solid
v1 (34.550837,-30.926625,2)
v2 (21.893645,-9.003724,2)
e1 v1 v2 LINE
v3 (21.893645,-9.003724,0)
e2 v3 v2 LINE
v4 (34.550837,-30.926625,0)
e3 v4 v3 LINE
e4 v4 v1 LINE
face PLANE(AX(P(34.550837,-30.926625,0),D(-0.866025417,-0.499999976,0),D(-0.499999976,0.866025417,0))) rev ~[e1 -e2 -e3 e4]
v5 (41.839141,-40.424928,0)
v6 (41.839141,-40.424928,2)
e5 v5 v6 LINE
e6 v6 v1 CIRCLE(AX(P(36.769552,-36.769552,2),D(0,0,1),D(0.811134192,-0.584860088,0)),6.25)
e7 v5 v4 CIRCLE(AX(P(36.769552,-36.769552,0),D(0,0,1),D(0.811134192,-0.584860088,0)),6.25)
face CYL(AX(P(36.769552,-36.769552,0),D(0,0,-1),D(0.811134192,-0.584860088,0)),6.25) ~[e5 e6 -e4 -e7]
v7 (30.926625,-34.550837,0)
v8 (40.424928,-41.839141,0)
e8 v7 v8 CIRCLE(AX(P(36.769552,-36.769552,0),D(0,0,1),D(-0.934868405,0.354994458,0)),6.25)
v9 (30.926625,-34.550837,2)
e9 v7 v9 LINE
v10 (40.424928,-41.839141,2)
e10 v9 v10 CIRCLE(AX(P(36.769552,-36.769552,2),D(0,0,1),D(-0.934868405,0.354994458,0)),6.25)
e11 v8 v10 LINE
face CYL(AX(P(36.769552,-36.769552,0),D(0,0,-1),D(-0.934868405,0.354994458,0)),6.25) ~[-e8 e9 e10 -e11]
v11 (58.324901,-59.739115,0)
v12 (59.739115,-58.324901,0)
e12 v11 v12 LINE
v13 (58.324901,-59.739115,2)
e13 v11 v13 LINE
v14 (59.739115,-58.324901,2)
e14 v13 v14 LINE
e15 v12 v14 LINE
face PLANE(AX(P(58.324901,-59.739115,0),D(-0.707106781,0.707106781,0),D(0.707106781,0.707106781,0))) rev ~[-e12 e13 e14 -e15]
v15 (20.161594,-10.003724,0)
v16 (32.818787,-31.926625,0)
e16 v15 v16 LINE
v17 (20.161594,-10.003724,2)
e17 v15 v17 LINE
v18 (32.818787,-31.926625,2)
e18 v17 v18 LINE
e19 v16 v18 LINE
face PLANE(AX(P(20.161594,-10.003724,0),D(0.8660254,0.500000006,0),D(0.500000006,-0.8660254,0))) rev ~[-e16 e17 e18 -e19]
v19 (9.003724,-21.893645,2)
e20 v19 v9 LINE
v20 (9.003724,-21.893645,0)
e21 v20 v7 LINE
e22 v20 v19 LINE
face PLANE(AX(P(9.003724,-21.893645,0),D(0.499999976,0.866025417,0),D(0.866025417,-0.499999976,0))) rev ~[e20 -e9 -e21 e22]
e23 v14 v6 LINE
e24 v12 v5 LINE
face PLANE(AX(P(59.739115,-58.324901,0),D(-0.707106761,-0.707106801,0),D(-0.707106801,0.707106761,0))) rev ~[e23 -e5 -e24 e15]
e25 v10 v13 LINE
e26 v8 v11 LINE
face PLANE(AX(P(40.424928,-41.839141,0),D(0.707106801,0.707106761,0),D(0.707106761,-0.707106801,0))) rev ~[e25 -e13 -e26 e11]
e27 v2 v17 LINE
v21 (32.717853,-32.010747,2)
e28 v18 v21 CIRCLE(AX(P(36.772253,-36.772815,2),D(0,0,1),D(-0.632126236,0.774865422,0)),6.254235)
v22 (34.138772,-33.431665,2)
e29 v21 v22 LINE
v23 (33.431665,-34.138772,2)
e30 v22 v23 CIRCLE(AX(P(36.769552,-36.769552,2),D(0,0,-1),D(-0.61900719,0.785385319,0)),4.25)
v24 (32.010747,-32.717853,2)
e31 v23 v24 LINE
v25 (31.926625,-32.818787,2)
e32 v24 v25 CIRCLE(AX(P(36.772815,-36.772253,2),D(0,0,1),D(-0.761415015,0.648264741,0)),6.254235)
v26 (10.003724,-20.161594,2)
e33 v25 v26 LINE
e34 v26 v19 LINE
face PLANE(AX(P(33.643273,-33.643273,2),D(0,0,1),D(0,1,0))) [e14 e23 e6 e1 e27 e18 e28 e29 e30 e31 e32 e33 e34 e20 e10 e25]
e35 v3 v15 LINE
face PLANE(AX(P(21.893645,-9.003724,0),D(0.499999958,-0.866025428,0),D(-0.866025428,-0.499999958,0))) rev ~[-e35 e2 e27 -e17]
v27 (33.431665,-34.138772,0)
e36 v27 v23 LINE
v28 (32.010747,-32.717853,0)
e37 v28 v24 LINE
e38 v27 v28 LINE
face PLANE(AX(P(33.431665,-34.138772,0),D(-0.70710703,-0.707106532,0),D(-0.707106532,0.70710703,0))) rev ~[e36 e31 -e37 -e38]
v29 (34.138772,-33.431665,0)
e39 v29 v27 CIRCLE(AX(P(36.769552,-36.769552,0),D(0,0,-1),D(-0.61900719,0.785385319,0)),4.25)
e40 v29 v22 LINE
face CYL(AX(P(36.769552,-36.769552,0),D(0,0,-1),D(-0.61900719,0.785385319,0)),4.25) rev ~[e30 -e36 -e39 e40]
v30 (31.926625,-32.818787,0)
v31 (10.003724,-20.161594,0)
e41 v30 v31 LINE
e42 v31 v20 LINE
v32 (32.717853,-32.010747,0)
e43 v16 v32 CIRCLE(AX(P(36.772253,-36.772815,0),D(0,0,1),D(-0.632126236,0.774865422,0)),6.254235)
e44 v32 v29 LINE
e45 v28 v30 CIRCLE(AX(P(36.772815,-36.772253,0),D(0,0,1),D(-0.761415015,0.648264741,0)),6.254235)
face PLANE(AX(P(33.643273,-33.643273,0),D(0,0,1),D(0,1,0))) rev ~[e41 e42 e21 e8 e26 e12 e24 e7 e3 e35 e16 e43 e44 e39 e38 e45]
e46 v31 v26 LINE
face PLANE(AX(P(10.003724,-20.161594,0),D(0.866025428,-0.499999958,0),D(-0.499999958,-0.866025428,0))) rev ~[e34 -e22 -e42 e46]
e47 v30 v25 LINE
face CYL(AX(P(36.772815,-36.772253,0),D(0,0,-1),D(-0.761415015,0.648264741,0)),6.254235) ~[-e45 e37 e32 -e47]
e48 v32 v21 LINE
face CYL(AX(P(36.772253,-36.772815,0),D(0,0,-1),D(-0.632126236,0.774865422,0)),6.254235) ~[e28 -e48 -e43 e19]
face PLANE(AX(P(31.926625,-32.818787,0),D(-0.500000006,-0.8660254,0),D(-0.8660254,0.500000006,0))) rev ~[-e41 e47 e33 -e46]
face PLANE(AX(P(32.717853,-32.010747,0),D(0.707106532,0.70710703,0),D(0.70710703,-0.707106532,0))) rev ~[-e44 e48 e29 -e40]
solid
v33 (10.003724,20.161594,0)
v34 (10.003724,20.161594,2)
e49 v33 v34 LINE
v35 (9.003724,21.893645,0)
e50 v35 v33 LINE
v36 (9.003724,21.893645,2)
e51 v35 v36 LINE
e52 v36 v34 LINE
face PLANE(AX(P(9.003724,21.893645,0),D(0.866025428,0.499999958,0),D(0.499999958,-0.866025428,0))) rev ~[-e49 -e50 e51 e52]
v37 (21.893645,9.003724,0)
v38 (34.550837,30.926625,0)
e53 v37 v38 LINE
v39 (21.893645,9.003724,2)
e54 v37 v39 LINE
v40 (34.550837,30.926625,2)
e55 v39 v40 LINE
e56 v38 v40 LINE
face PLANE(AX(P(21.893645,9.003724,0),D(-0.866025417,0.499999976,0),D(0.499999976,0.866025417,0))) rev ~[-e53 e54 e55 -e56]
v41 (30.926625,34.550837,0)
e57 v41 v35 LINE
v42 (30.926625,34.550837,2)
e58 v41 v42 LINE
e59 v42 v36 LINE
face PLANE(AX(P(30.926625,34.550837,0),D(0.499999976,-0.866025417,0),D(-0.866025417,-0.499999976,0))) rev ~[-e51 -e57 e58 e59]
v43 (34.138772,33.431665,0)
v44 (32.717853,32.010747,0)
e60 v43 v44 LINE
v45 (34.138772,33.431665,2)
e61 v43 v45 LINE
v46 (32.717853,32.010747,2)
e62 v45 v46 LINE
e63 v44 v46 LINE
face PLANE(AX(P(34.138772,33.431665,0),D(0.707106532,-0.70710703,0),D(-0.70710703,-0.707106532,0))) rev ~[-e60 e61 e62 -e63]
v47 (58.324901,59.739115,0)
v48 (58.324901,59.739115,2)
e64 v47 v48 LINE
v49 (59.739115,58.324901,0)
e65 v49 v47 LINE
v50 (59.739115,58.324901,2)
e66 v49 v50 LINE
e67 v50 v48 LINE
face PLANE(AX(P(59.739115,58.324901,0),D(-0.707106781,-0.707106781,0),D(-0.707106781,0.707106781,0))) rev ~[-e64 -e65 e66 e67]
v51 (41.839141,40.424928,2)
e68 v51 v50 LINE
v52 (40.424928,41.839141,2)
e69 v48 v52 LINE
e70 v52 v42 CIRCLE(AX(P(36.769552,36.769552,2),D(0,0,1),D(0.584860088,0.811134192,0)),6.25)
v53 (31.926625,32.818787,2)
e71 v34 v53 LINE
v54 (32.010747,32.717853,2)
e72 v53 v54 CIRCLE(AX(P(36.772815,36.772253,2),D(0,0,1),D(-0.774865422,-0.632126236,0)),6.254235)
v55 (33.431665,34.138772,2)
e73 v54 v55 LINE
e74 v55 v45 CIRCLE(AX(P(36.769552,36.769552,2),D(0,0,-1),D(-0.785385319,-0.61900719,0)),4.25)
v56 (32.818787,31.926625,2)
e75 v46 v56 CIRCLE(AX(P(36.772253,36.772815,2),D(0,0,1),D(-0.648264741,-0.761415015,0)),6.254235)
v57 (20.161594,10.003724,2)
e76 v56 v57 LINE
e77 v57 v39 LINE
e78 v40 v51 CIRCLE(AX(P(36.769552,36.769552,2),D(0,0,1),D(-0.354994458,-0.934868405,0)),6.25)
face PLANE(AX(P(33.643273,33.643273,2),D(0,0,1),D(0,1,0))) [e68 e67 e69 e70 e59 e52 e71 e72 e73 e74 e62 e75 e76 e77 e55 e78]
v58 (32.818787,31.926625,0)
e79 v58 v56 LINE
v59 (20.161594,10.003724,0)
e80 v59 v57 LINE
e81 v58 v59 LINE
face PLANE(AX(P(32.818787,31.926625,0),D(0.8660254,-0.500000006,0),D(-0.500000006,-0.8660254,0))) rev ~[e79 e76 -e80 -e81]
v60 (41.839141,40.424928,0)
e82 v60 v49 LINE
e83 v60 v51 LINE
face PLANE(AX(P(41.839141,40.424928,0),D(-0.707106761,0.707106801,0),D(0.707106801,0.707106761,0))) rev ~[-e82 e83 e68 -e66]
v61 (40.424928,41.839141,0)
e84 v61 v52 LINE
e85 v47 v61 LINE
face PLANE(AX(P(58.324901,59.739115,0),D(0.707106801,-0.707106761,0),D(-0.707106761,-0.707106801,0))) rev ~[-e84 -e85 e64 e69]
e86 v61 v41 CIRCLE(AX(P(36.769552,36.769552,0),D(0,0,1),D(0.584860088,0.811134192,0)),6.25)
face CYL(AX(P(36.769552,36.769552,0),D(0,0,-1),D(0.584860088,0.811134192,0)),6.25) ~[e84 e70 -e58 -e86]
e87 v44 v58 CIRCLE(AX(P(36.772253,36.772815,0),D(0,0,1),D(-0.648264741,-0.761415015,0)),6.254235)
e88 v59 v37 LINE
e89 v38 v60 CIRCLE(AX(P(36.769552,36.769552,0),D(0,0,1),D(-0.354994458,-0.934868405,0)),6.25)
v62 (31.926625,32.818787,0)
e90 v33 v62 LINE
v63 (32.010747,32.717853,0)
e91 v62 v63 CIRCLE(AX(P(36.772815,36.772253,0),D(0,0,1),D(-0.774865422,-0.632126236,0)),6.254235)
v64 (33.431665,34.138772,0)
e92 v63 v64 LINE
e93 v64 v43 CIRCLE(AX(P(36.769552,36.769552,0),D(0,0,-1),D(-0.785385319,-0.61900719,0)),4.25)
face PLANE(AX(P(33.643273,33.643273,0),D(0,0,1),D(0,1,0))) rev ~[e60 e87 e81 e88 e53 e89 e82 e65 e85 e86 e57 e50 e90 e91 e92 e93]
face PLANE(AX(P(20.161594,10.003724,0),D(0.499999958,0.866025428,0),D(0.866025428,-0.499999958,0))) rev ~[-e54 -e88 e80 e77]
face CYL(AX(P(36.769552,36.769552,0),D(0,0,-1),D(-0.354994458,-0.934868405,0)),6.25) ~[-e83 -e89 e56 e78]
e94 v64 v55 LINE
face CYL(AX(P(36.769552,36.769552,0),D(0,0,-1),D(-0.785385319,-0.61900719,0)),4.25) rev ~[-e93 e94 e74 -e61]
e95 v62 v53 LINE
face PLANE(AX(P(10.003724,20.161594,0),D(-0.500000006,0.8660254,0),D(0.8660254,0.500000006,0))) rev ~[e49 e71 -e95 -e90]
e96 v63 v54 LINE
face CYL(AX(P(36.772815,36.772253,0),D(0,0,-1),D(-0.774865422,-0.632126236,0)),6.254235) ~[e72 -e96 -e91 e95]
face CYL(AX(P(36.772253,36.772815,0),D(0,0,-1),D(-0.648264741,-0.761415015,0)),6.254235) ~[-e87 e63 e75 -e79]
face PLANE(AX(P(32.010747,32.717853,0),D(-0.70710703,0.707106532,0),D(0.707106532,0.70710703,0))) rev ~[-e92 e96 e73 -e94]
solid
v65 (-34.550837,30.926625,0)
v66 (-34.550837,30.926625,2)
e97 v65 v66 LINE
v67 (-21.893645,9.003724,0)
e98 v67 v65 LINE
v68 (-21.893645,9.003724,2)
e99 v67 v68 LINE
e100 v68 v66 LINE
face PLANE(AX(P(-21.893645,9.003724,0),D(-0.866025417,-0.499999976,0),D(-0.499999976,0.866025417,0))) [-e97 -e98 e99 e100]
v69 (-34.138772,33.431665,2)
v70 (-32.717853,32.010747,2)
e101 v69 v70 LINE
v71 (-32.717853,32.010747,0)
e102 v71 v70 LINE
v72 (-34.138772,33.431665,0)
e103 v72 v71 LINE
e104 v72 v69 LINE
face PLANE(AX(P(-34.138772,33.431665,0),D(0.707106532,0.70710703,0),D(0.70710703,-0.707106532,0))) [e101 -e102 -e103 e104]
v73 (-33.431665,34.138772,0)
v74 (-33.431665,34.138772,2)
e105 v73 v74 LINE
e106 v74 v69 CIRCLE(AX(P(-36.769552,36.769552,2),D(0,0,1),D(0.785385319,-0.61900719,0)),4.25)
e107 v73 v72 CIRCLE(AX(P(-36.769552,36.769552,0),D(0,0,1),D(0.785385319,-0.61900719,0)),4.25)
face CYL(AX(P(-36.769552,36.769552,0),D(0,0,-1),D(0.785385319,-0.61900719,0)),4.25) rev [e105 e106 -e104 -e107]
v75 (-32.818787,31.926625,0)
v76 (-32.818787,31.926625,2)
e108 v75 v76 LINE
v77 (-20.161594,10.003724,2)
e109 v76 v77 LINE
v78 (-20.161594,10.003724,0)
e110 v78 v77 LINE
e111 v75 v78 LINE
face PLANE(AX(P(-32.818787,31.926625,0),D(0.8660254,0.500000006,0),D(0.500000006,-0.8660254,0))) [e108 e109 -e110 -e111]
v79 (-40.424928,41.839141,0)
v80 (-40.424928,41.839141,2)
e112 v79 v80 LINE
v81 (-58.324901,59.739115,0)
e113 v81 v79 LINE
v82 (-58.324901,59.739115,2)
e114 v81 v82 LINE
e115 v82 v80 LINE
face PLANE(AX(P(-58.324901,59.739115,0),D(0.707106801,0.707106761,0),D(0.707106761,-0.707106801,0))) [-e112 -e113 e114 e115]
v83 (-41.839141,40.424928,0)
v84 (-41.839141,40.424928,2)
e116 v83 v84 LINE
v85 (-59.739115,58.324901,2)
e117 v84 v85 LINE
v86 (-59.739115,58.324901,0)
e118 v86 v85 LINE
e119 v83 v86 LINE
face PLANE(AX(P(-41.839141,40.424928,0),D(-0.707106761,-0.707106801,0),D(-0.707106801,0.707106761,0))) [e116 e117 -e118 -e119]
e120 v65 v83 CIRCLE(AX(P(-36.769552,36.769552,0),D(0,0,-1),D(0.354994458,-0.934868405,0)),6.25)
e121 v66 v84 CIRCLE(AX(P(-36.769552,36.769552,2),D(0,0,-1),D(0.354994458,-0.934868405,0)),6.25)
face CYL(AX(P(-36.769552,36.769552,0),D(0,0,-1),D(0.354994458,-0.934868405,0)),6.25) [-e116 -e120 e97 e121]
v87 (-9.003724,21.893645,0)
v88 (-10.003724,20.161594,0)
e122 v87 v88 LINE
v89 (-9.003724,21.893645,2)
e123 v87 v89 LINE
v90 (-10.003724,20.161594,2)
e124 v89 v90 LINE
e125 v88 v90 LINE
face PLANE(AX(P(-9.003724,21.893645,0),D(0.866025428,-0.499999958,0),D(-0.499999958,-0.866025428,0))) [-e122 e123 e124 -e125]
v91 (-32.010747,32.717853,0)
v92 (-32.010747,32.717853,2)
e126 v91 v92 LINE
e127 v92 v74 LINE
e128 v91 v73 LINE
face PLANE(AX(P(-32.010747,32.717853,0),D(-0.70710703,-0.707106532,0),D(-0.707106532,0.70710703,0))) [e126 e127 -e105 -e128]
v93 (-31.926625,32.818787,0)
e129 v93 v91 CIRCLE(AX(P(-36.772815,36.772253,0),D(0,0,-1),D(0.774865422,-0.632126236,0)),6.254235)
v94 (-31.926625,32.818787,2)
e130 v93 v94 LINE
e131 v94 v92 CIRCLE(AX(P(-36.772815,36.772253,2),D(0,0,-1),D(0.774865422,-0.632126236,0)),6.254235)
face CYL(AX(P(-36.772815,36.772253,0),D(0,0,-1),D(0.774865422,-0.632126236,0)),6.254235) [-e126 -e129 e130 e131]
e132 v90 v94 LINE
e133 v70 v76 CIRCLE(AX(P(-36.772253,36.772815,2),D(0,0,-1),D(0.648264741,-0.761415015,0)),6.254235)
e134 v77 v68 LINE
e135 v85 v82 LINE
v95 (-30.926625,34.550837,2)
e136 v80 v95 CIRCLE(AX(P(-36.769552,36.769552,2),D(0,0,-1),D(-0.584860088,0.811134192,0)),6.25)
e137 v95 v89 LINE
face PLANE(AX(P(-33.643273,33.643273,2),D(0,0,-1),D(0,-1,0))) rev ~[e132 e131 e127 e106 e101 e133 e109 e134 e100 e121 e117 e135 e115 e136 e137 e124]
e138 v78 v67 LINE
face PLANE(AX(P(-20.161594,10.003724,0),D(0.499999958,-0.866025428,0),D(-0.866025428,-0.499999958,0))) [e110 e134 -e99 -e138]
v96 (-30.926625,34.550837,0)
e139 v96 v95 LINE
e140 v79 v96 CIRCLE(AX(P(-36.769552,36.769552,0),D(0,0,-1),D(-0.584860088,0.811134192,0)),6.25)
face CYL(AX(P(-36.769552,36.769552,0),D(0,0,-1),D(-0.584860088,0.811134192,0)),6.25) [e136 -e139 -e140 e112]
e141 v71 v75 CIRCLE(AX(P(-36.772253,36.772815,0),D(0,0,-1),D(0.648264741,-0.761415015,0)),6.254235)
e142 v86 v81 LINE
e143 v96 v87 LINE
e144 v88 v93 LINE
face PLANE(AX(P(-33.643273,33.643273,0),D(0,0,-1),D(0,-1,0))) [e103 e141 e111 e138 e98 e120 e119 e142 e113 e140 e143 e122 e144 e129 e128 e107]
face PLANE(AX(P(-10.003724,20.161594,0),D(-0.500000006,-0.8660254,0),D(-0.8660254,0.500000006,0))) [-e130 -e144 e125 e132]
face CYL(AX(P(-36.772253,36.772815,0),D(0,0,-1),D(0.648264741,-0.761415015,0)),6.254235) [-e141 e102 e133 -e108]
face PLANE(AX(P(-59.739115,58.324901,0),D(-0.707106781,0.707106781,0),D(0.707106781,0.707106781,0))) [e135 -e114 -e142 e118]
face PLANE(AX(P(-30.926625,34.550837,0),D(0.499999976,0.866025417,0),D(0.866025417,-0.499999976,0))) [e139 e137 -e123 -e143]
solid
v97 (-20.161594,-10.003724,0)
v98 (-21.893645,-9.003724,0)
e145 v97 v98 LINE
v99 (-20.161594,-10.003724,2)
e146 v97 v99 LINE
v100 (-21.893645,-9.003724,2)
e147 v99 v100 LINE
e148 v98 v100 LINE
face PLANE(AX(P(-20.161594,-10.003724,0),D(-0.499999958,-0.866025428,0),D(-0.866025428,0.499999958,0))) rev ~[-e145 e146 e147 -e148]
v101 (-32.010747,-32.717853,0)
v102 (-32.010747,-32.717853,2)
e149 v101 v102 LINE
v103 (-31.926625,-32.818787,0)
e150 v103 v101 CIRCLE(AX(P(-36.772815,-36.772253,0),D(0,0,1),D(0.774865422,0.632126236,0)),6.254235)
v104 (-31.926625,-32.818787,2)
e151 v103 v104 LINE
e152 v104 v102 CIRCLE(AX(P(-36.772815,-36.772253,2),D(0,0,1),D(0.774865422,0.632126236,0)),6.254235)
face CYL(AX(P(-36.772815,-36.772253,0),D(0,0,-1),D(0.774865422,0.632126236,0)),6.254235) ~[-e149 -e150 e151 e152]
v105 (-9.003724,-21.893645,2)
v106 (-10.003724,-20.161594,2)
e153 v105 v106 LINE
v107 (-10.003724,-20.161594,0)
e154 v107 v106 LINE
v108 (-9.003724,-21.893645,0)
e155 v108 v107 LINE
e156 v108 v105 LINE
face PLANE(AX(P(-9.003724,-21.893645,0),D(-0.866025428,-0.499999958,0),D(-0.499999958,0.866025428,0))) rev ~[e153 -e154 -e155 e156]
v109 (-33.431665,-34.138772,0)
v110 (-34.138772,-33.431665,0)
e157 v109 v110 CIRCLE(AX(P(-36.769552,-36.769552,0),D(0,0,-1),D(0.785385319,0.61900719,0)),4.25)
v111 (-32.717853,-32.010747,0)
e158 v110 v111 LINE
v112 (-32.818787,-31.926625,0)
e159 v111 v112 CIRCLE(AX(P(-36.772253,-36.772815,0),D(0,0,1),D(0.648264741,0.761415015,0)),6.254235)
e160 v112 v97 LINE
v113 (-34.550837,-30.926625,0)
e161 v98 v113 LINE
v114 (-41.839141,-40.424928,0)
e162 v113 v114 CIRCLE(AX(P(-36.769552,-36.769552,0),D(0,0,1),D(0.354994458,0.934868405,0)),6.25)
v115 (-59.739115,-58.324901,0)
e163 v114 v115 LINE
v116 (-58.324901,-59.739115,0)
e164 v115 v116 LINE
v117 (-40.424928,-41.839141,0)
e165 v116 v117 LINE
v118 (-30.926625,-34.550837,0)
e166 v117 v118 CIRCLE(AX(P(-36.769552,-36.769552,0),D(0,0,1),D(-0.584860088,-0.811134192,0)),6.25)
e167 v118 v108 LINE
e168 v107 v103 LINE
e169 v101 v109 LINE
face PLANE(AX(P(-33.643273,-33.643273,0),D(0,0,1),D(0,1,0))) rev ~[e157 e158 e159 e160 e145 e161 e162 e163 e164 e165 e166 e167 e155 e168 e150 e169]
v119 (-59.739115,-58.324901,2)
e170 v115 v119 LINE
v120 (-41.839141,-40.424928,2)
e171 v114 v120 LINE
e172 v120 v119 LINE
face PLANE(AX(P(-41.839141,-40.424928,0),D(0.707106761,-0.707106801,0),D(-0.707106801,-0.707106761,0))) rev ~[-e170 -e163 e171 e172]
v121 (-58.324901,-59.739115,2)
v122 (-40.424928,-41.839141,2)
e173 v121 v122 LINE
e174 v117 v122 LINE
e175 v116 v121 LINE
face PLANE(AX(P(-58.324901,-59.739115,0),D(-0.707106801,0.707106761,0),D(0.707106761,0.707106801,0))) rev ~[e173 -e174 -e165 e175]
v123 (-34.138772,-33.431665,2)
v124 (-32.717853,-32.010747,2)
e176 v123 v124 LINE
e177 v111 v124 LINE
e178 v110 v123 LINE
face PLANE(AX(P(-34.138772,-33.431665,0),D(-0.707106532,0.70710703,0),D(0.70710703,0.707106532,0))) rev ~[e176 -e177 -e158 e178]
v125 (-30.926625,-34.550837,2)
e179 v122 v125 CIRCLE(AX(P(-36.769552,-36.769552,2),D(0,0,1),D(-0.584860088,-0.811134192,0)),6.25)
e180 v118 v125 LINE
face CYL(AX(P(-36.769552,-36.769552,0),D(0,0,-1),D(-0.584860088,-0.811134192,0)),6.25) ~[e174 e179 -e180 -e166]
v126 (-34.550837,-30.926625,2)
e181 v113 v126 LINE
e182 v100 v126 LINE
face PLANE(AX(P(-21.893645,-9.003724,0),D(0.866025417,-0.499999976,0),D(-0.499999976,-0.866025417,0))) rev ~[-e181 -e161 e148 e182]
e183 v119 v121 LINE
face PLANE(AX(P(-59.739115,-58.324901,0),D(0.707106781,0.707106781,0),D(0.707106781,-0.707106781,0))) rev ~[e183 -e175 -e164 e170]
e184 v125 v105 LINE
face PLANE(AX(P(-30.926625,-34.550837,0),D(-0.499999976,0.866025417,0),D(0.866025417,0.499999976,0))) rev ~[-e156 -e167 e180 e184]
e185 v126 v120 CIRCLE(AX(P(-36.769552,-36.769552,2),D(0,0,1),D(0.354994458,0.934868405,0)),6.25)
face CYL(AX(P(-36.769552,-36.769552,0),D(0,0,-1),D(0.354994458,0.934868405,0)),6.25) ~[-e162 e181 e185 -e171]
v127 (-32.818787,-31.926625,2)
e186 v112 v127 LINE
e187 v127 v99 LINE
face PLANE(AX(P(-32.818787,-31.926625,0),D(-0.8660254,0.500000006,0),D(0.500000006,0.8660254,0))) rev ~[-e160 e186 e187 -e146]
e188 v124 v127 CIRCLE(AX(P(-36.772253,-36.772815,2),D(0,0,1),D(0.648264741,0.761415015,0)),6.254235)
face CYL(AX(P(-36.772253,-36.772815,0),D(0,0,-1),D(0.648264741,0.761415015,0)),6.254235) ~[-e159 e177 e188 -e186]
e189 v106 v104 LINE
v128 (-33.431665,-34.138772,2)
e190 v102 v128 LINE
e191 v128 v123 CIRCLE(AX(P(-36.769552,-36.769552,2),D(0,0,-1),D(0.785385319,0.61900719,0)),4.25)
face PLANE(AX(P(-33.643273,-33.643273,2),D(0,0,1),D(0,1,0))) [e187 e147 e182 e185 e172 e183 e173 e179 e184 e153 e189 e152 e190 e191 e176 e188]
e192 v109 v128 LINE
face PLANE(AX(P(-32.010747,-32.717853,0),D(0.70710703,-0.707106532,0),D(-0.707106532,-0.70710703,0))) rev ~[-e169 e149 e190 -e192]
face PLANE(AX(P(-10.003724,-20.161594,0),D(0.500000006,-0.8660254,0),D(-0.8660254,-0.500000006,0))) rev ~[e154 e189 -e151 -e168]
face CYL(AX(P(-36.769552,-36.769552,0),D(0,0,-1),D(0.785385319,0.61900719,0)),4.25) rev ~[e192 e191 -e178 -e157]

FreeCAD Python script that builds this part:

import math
import FreeCAD as App
import Part
import Sketcher

V = App.Vector
Q = App.Units.Quantity

doc = App.newDocument("Part")
params = doc.addObject("Spreadsheet::Sheet", "Params")
for row, (alias, value) in enumerate([
    ("sketch1_radius", "6.25 mm"),
    ("sketch1_radius2", "6.25 mm"),
    ("sketch1_radius3", "4.25 mm"),
    ("sketch1_length", "2.000001 mm"),
    ("sketch1_length2", "2 mm"),
    ("pad1_length", "2 mm"),
    ("sketch2_radius", "6.25 mm"),
    ("sketch2_radius2", "4.25 mm"),
    ("sketch2_radius3", "6.25 mm"),
    ("sketch2_length", "2 mm"),
    ("sketch2_length2", "2 mm"),
    ("pad2_length", "2 mm"),
    ("sketch3_radius", "6.25 mm"),
    ("sketch3_radius2", "6.25 mm"),
    ("sketch3_radius3", "4.25 mm"),
    ("sketch3_length", "2.000001 mm"),
    ("sketch3_length2", "2 mm"),
    ("pad3_length", "2 mm"),
    ("sketch4_radius", "6.25 mm"),
    ("sketch4_radius2", "6.25 mm"),
    ("sketch4_radius3", "4.25 mm"),
    ("sketch4_length", "2.000001 mm"),
    ("sketch4_length2", "2 mm"),
    ("pad4_length", "2 mm"),
], start=1):
    params.set(f"A{row}", alias)
    params.set(f"B{row}", "=" + value)
    params.setAlias(f"B{row}", alias)

body = doc.addObject("PartDesign::Body", "Body")

# Sketch on XY plane
sketch1 = doc.addObject("Sketcher::SketchObject", "Sketch")
body.addObject(sketch1)
sketch1.AttachmentSupport = (doc.XY_Plane, [""])
sketch1.MapMode = "FlatFace"
sketch1.addGeometry([
    Part.LineSegment(V(-21.893645, 9.003724, 0), V(-34.550837, 30.926625, 0)),  # 0
    Part.ArcOfCircle(Part.Circle(V(-36.769552, 36.769552, 0), V(0, 0, 1), 6.25), math.radians(144.206893), math.radians(290.793105)),  # 1
    Part.LineSegment(V(-41.839141, 40.424928, 0), V(-59.739115, 58.324901, 0)),  # 2
    Part.LineSegment(V(-59.739115, 58.324901, 0), V(-58.324901, 59.739115, 0)),  # 3
    Part.LineSegment(V(-58.324901, 59.739115, 0), V(-40.424928, 41.839141, 0)),  # 4
    Part.ArcOfCircle(Part.Circle(V(-36.769552, 36.769552, 0), V(0, 0, 1), 6.25), math.radians(-20.793105), math.radians(125.793107)),  # 5
    Part.LineSegment(V(-30.926625, 34.550837, 0), V(-9.003724, 21.893645, 0)),  # 6
    Part.LineSegment(V(-9.003724, 21.893645, 0), V(-10.003724, 20.161594, 0)),  # 7
    Part.LineSegment(V(-10.003724, 20.161594, 0), V(-31.926625, 32.818787, 0)),  # 8
    Part.ArcOfCircle(Part.Circle(V(-36.772815, 36.772253, 0), V(0, 0, 1), 6.254235), math.radians(-40.410898), math.radians(-39.207167)),  # 9
    Part.LineSegment(V(-32.010747, 32.717853, 0), V(-33.431665, 34.138772, 0)),  # 10
    Part.ArcOfCircle(Part.Circle(V(-36.769552, 36.769552, 0), V(0, 0, 1), 4.25), math.radians(-38.24367), math.radians(308.24367)),  # 11
    Part.LineSegment(V(-34.138772, 33.431665, 0), V(-32.717853, 32.010747, 0)),  # 12
    Part.ArcOfCircle(Part.Circle(V(-36.772253, 36.772815, 0), V(0, 0, 1), 6.254235), math.radians(-50.792833), math.radians(-49.589102)),  # 13
    Part.LineSegment(V(-32.818787, 31.926625, 0), V(-20.161594, 10.003724, 0)),  # 14
    Part.LineSegment(V(-20.161594, 10.003724, 0), V(-21.893645, 9.003724, 0)),  # 15
], False)
sketch1.addConstraint([
    Sketcher.Constraint("Coincident", 0, 2, 1, 2),
    Sketcher.Constraint("Coincident", 1, 1, 2, 1),
    Sketcher.Constraint("Coincident", 2, 2, 3, 1),
    Sketcher.Constraint("Coincident", 3, 2, 4, 1),
    Sketcher.Constraint("Coincident", 4, 2, 5, 2),
    Sketcher.Constraint("Coincident", 5, 1, 6, 1),
    Sketcher.Constraint("Coincident", 6, 2, 7, 1),
    Sketcher.Constraint("Coincident", 7, 2, 8, 1),
    Sketcher.Constraint("Coincident", 8, 2, 9, 2),
    Sketcher.Constraint("Coincident", 9, 1, 10, 1),
    Sketcher.Constraint("Coincident", 10, 2, 11, 1),
    Sketcher.Constraint("Coincident", 11, 2, 12, 1),
    Sketcher.Constraint("Coincident", 12, 2, 13, 2),
    Sketcher.Constraint("Coincident", 13, 1, 14, 1),
    Sketcher.Constraint("Coincident", 14, 2, 15, 1),
    Sketcher.Constraint("Coincident", 15, 2, 0, 1),
    Sketcher.Constraint("Coincident", 5, 3, 1, 3),
    Sketcher.Constraint("Coincident", 11, 3, 1, 3),
    Sketcher.Constraint("Radius", 1, Q("6.25 mm")),
    Sketcher.Constraint("Radius", 5, Q("6.25 mm")),
    Sketcher.Constraint("Radius", 11, Q("4.25 mm")),
    Sketcher.Constraint("Distance", 3, Q("2.000001 mm")),
    Sketcher.Constraint("Distance", 7, Q("2 mm")),
    Sketcher.Constraint("Distance", 15, Q("2 mm")),
    Sketcher.Constraint("DistanceX", 7, 2, 6, 2, Q("1 mm")),
    Sketcher.Constraint("DistanceX", 8, 2, 5, 1, Q("1 mm")),
    Sketcher.Constraint("DistanceY", 0, 2, 13, 1, Q("1 mm")),
    Sketcher.Constraint("DistanceY", 15, 2, 14, 2, Q("1 mm")),
    Sketcher.Constraint("Radius", 9, Q("6.254235 mm")),
    Sketcher.Constraint("Radius", 13, Q("6.254235 mm")),
    Sketcher.Constraint("DistanceY", -1, 1, 2, 2, Q("58.324901 mm")),
    Sketcher.Constraint("DistanceX", 3, 2, -1, 1, Q("58.324901 mm")),
    Sketcher.Constraint("DistanceY", 5, 3, 9, 3, Q("0.0027 mm")),
    Sketcher.Constraint("DistanceX", 13, 3, 1, 3, Q("0.0027 mm")),
    Sketcher.Constraint("DistanceX", 2, 2, 9, 3, Q("22.9663 mm")),
    Sketcher.Constraint("DistanceY", 13, 3, 3, 2, Q("22.9663 mm")),
    Sketcher.Constraint("DistanceX", 5, 1, 6, 2, Q("21.922901 mm")),
    Sketcher.Constraint("DistanceY", 9, 1, 11, 3, Q("4.051699 mm")),
    Sketcher.Constraint("DistanceY", 14, 2, 13, 1, Q("21.922901 mm")),
    Sketcher.Constraint("DistanceX", 1, 1, -1, 1, Q("41.839141 mm")),
    Sketcher.Constraint("DistanceY", -1, 1, 1, 1, Q("40.424928 mm")),
    Sketcher.Constraint("DistanceY", -1, 1, 4, 2, Q("41.839141 mm")),
    Sketcher.Constraint("DistanceX", 11, 2, -1, 1, Q("34.138772 mm")),
    Sketcher.Constraint("DistanceX", 9, 3, 0, 2, Q("2.221978 mm")),
    Sketcher.Constraint("DistanceY", 0, 2, 13, 3, Q("5.84619 mm")),
    Sketcher.Constraint("DistanceX", 1, 1, 13, 3, Q("5.066888 mm")),
    Sketcher.Constraint("DistanceY", 0, 2, 5, 1, Q("3.624212 mm")),
    Sketcher.Constraint("DistanceY", 6, 2, 5, 1, Q("12.657192 mm")),
    Sketcher.Constraint("DistanceX", 10, 2, 8, 2, Q("1.50504 mm")),
    Sketcher.Constraint("DistanceY", 12, 2, 8, 2, Q("0.80804 mm")),
    Sketcher.Constraint("DistanceX", 14, 2, 7, 2, Q("10.15787 mm")),
])
sketch1.setExpression("Constraints[18]", "Params.sketch1_radius")
sketch1.setExpression("Constraints[19]", "Params.sketch1_radius2")
sketch1.setExpression("Constraints[20]", "Params.sketch1_radius3")
sketch1.setExpression("Constraints[21]", "Params.sketch1_length")
sketch1.setExpression("Constraints[22]", "Params.sketch1_length2")
pad1 = doc.addObject("PartDesign::Pad", "Pad")
body.addObject(pad1)
pad1.Profile = sketch1
pad1.setExpression("Length", "Params.pad1_length")
body2 = doc.addObject("PartDesign::Body", "Body001")

# Sketch on XY plane
sketch2 = doc.addObject("Sketcher::SketchObject", "Sketch001")
body2.addObject(sketch2)
sketch2.AttachmentSupport = (doc.getObject("XY_Plane001"), [""])
sketch2.MapMode = "FlatFace"
sketch2.addGeometry([
    Part.LineSegment(V(58.324901, 59.739115, 0), V(40.424928, 41.839141, 0)),  # 0
    Part.ArcOfCircle(Part.Circle(V(36.769552, 36.769552, 0), V(0, 0, 1), 6.25), math.radians(54.206893), math.radians(200.793105)),  # 1
    Part.LineSegment(V(30.926625, 34.550837, 0), V(9.003724, 21.893645, 0)),  # 2
    Part.LineSegment(V(9.003724, 21.893645, 0), V(10.003724, 20.161594, 0)),  # 3
    Part.LineSegment(V(10.003724, 20.161594, 0), V(31.926625, 32.818787, 0)),  # 4
    Part.ArcOfCircle(Part.Circle(V(36.772815, 36.772253, 0), V(0, 0, 1), 6.254235), math.radians(-140.792833), math.radians(-139.589102)),  # 5
    Part.LineSegment(V(32.010747, 32.717853, 0), V(33.431665, 34.138772, 0)),  # 6
    Part.ArcOfCircle(Part.Circle(V(36.769552, 36.769552, 0), V(0, 0, 1), 4.25), math.radians(-128.24367), math.radians(218.24367)),  # 7
    Part.LineSegment(V(34.138772, 33.431665, 0), V(32.717853, 32.010747, 0)),  # 8
    Part.ArcOfCircle(Part.Circle(V(36.772253, 36.772815, 0), V(0, 0, 1), 6.254235), math.radians(-130.410898), math.radians(-129.207167)),  # 9
    Part.LineSegment(V(32.818787, 31.926625, 0), V(20.161594, 10.003724, 0)),  # 10
    Part.LineSegment(V(20.161594, 10.003724, 0), V(21.893645, 9.003724, 0)),  # 11
    Part.LineSegment(V(21.893645, 9.003724, 0), V(34.550837, 30.926625, 0)),  # 12
    Part.ArcOfCircle(Part.Circle(V(36.769552, 36.769552, 0), V(0, 0, 1), 6.25), math.radians(-110.793105), math.radians(35.793107)),  # 13
    Part.LineSegment(V(41.839141, 40.424928, 0), V(59.739115, 58.324901, 0)),  # 14
    Part.LineSegment(V(59.739115, 58.324901, 0), V(58.324901, 59.739115, 0)),  # 15
], False)
sketch2.addConstraint([
    Sketcher.Constraint("Coincident", 0, 2, 1, 1),
    Sketcher.Constraint("Coincident", 1, 2, 2, 1),
    Sketcher.Constraint("Coincident", 2, 2, 3, 1),
    Sketcher.Constraint("Coincident", 3, 2, 4, 1),
    Sketcher.Constraint("Coincident", 4, 2, 5, 1),
    Sketcher.Constraint("Coincident", 5, 2, 6, 1),
    Sketcher.Constraint("Coincident", 6, 2, 7, 2),
    Sketcher.Constraint("Coincident", 7, 1, 8, 1),
    Sketcher.Constraint("Coincident", 8, 2, 9, 1),
    Sketcher.Constraint("Coincident", 9, 2, 10, 1),
    Sketcher.Constraint("Coincident", 10, 2, 11, 1),
    Sketcher.Constraint("Coincident", 11, 2, 12, 1),
    Sketcher.Constraint("Coincident", 12, 2, 13, 1),
    Sketcher.Constraint("Coincident", 13, 2, 14, 1),
    Sketcher.Constraint("Coincident", 14, 2, 15, 1),
    Sketcher.Constraint("Coincident", 15, 2, 0, 1),
    Sketcher.Constraint("Coincident", 7, 3, 1, 3),
    Sketcher.Constraint("Coincident", 13, 3, 1, 3),
    Sketcher.Constraint("Radius", 1, Q("6.25 mm")),
    Sketcher.Constraint("Radius", 7, Q("4.25 mm")),
    Sketcher.Constraint("Radius", 13, Q("6.25 mm")),
    Sketcher.Constraint("Distance", 3, Q("2 mm")),
    Sketcher.Constraint("Distance", 11, Q("2 mm")),
    Sketcher.Constraint("Distance", 15, Q("2.000001 mm")),
    Sketcher.Constraint("DistanceX", 2, 2, 3, 2, Q("1 mm")),
    Sketcher.Constraint("DistanceX", 1, 2, 4, 2, Q("1 mm")),
    Sketcher.Constraint("DistanceY", 11, 2, 10, 2, Q("1 mm")),
    Sketcher.Constraint("DistanceY", 12, 2, 9, 2, Q("1 mm")),
    Sketcher.Constraint("Radius", 5, Q("6.254235 mm")),
    Sketcher.Constraint("Radius", 9, Q("6.254235 mm")),
    Sketcher.Constraint("DistanceY", -1, 1, 14, 2, Q("58.324901 mm")),
    Sketcher.Constraint("DistanceX", -1, 1, 15, 2, Q("58.324901 mm")),
    Sketcher.Constraint("DistanceY", 1, 3, 5, 3, Q("0.0027 mm")),
    Sketcher.Constraint("DistanceX", 1, 3, 9, 3, Q("0.0027 mm")),
    Sketcher.Constraint("DistanceX", 2, 2, 1, 2, Q("21.922901 mm")),
    Sketcher.Constraint("DistanceY", 5, 2, 7, 3, Q("4.051699 mm")),
    Sketcher.Constraint("DistanceY", 10, 2, 9, 2, Q("21.922901 mm")),
    Sketcher.Constraint("DistanceX", 5, 3, 14, 2, Q("22.9663 mm")),
    Sketcher.Constraint("DistanceY", 9, 3, 15, 2, Q("22.9663 mm")),
    Sketcher.Constraint("DistanceY", -1, 1, 0, 2, Q("41.839141 mm")),
    Sketcher.Constraint("DistanceX", -1, 1, 7, 1, Q("34.138772 mm")),
    Sketcher.Constraint("DistanceX", -1, 1, 13, 2, Q("41.839141 mm")),
    Sketcher.Constraint("DistanceY", -1, 1, 13, 2, Q("40.424928 mm")),
    Sketcher.Constraint("DistanceY", 5, 3, 0, 2, Q("5.066888 mm")),
    Sketcher.Constraint("DistanceY", 1, 2, 9, 3, Q("2.221978 mm")),
    Sketcher.Constraint("DistanceX", 1, 2, 5, 3, Q("5.84619 mm")),
    Sketcher.Constraint("DistanceY", 2, 2, 1, 2, Q("12.657192 mm")),
    Sketcher.Constraint("DistanceX", 4, 2, 6, 2, Q("1.50504 mm")),
    Sketcher.Constraint("DistanceY", 8, 2, 4, 2, Q("0.80804 mm")),
    Sketcher.Constraint("DistanceY", 9, 2, 8, 2, Q("0.084122 mm")),
    Sketcher.Constraint("DistanceX", 3, 2, 10, 2, Q("10.15787 mm")),
])
sketch2.setExpression("Constraints[18]", "Params.sketch2_radius")
sketch2.setExpression("Constraints[19]", "Params.sketch2_radius2")
sketch2.setExpression("Constraints[20]", "Params.sketch2_radius3")
sketch2.setExpression("Constraints[21]", "Params.sketch2_length")
sketch2.setExpression("Constraints[22]", "Params.sketch2_length2")
pad2 = doc.addObject("PartDesign::Pad", "Pad001")
body2.addObject(pad2)
pad2.Profile = sketch2
pad2.setExpression("Length", "Params.pad2_length")
body3 = doc.addObject("PartDesign::Body", "Body002")

# Sketch on XY plane
sketch3 = doc.addObject("Sketcher::SketchObject", "Sketch002")
body3.addObject(sketch3)
sketch3.AttachmentSupport = (doc.getObject("XY_Plane002"), [""])
sketch3.MapMode = "FlatFace"
sketch3.addGeometry([
    Part.LineSegment(V(9.003724, -21.893645, 0), V(30.926625, -34.550837, 0)),  # 0
    Part.ArcOfCircle(Part.Circle(V(36.769552, -36.769552, 0), V(0, 0, 1), 6.25), math.radians(159.206895), math.radians(305.793107)),  # 1
    Part.LineSegment(V(40.424928, -41.839141, 0), V(58.324901, -59.739115, 0)),  # 2
    Part.LineSegment(V(58.324901, -59.739115, 0), V(59.739115, -58.324901, 0)),  # 3
    Part.LineSegment(V(59.739115, -58.324901, 0), V(41.839141, -40.424928, 0)),  # 4
    Part.ArcOfCircle(Part.Circle(V(36.769552, -36.769552, 0), V(0, 0, 1), 6.25), math.radians(-35.793107), math.radians(110.793105)),  # 5
    Part.LineSegment(V(34.550837, -30.926625, 0), V(21.893645, -9.003724, 0)),  # 6
    Part.LineSegment(V(21.893645, -9.003724, 0), V(20.161594, -10.003724, 0)),  # 7
    Part.LineSegment(V(20.161594, -10.003724, 0), V(32.818787, -31.926625, 0)),  # 8
    Part.ArcOfCircle(Part.Circle(V(36.772253, -36.772815, 0), V(0, 0, 1), 6.254235), math.radians(129.207167), math.radians(130.410898)),  # 9
    Part.LineSegment(V(32.717853, -32.010747, 0), V(34.138772, -33.431665, 0)),  # 10
    Part.ArcOfCircle(Part.Circle(V(36.769552, -36.769552, 0), V(0, 0, 1), 4.25), math.radians(141.75633), math.radians(488.24367)),  # 11
    Part.LineSegment(V(33.431665, -34.138772, 0), V(32.010747, -32.717853, 0)),  # 12
    Part.ArcOfCircle(Part.Circle(V(36.772815, -36.772253, 0), V(0, 0, 1), 6.254235), math.radians(139.589102), math.radians(140.792833)),  # 13
    Part.LineSegment(V(31.926625, -32.818787, 0), V(10.003724, -20.161594, 0)),  # 14
    Part.LineSegment(V(10.003724, -20.161594, 0), V(9.003724, -21.893645, 0)),  # 15
], False)
sketch3.addConstraint([
    Sketcher.Constraint("Coincident", 0, 2, 1, 1),
    Sketcher.Constraint("Coincident", 1, 2, 2, 1),
    Sketcher.Constraint("Coincident", 2, 2, 3, 1),
    Sketcher.Constraint("Coincident", 3, 2, 4, 1),
    Sketcher.Constraint("Coincident", 4, 2, 5, 1),
    Sketcher.Constraint("Coincident", 5, 2, 6, 1),
    Sketcher.Constraint("Coincident", 6, 2, 7, 1),
    Sketcher.Constraint("Coincident", 7, 2, 8, 1),
    Sketcher.Constraint("Coincident", 8, 2, 9, 1),
    Sketcher.Constraint("Coincident", 9, 2, 10, 1),
    Sketcher.Constraint("Coincident", 10, 2, 11, 2),
    Sketcher.Constraint("Coincident", 11, 1, 12, 1),
    Sketcher.Constraint("Coincident", 12, 2, 13, 1),
    Sketcher.Constraint("Coincident", 13, 2, 14, 1),
    Sketcher.Constraint("Coincident", 14, 2, 15, 1),
    Sketcher.Constraint("Coincident", 15, 2, 0, 1),
    Sketcher.Constraint("Coincident", 5, 3, 1, 3),
    Sketcher.Constraint("Coincident", 11, 3, 1, 3),
    Sketcher.Constraint("Radius", 1, Q("6.25 mm")),
    Sketcher.Constraint("Radius", 5, Q("6.25 mm")),
    Sketcher.Constraint("Radius", 11, Q("4.25 mm")),
    Sketcher.Constraint("Distance", 3, Q("2.000001 mm")),
    Sketcher.Constraint("Distance", 7, Q("2 mm")),
    Sketcher.Constraint("Distance", 15, Q("2 mm")),
    Sketcher.Constraint("DistanceY", 7, 2, 6, 2, Q("1 mm")),
    Sketcher.Constraint("DistanceY", 8, 2, 5, 2, Q("1 mm")),
    Sketcher.Constraint("DistanceX", 0, 2, 13, 2, Q("1 mm")),
    Sketcher.Constraint("DistanceX", 15, 2, 14, 2, Q("1 mm")),
    Sketcher.Constraint("Radius", 9, Q("6.254235 mm")),
    Sketcher.Constraint("Radius", 13, Q("6.254235 mm")),
    Sketcher.Constraint("DistanceX", -1, 1, 2, 2, Q("58.324901 mm")),
    Sketcher.Constraint("DistanceY", 3, 2, -1, 1, Q("58.324901 mm")),
    Sketcher.Constraint("DistanceX", 5, 3, 9, 3, Q("0.0027 mm")),
    Sketcher.Constraint("DistanceY", 13, 3, 1, 3, Q("0.0027 mm")),
    Sketcher.Constraint("DistanceY", 2, 2, 9, 3, Q("22.9663 mm")),
    Sketcher.Constraint("DistanceX", 13, 3, 3, 2, Q("22.9663 mm")),
    Sketcher.Constraint("DistanceY", 5, 2, 6, 2, Q("21.922901 mm")),
    Sketcher.Constraint("DistanceX", 9, 2, 11, 3, Q("4.051699 mm")),
    Sketcher.Constraint("DistanceX", 14, 2, 13, 2, Q("21.922901 mm")),
    Sketcher.Constraint("DistanceX", -1, 1, 1, 2, Q("40.424928 mm")),
    Sketcher.Constraint("DistanceY", 1, 2, -1, 1, Q("41.839141 mm")),
    Sketcher.Constraint("DistanceX", -1, 1, 4, 2, Q("41.839141 mm")),
    Sketcher.Constraint("DistanceY", 11, 1, -1, 1, Q("34.138772 mm")),
    Sketcher.Constraint("DistanceY", 9, 3, 0, 2, Q("2.221978 mm")),
    Sketcher.Constraint("DistanceX", 0, 2, 13, 3, Q("5.84619 mm")),
    Sketcher.Constraint("DistanceY", 1, 2, 13, 3, Q("5.066888 mm")),
    Sketcher.Constraint("DistanceX", 0, 2, 5, 2, Q("3.624212 mm")),
    Sketcher.Constraint("DistanceX", 6, 2, 5, 2, Q("12.657192 mm")),
    Sketcher.Constraint("DistanceY", 10, 2, 8, 2, Q("1.50504 mm")),
    Sketcher.Constraint("DistanceX", 12, 2, 8, 2, Q("0.80804 mm")),
    Sketcher.Constraint("DistanceY", 14, 2, 7, 2, Q("10.15787 mm")),
])
sketch3.setExpression("Constraints[18]", "Params.sketch3_radius")
sketch3.setExpression("Constraints[19]", "Params.sketch3_radius2")
sketch3.setExpression("Constraints[20]", "Params.sketch3_radius3")
sketch3.setExpression("Constraints[21]", "Params.sketch3_length")
sketch3.setExpression("Constraints[22]", "Params.sketch3_length2")
pad3 = doc.addObject("PartDesign::Pad", "Pad002")
body3.addObject(pad3)
pad3.Profile = sketch3
pad3.setExpression("Length", "Params.pad3_length")
body4 = doc.addObject("PartDesign::Body", "Body003")

# Sketch on XY plane
sketch4 = doc.addObject("Sketcher::SketchObject", "Sketch003")
body4.addObject(sketch4)
sketch4.AttachmentSupport = (doc.getObject("XY_Plane003"), [""])
sketch4.MapMode = "FlatFace"
sketch4.addGeometry([
    Part.LineSegment(V(-21.893645, -9.003724, 0), V(-34.550837, -30.926625, 0)),  # 0
    Part.ArcOfCircle(Part.Circle(V(-36.769552, -36.769552, 0), V(0, 0, 1), 6.25), math.radians(69.206895), math.radians(215.793107)),  # 1
    Part.LineSegment(V(-41.839141, -40.424928, 0), V(-59.739115, -58.324901, 0)),  # 2
    Part.LineSegment(V(-59.739115, -58.324901, 0), V(-58.324901, -59.739115, 0)),  # 3
    Part.LineSegment(V(-58.324901, -59.739115, 0), V(-40.424928, -41.839141, 0)),  # 4
    Part.ArcOfCircle(Part.Circle(V(-36.769552, -36.769552, 0), V(0, 0, 1), 6.25), math.radians(-125.793107), math.radians(20.793105)),  # 5
    Part.LineSegment(V(-30.926625, -34.550837, 0), V(-9.003724, -21.893645, 0)),  # 6
    Part.LineSegment(V(-9.003724, -21.893645, 0), V(-10.003724, -20.161594, 0)),  # 7
    Part.LineSegment(V(-10.003724, -20.161594, 0), V(-31.926625, -32.818787, 0)),  # 8
    Part.ArcOfCircle(Part.Circle(V(-36.772815, -36.772253, 0), V(0, 0, 1), 6.254235), math.radians(39.207167), math.radians(40.410898)),  # 9
    Part.LineSegment(V(-32.010747, -32.717853, 0), V(-33.431665, -34.138772, 0)),  # 10
    Part.ArcOfCircle(Part.Circle(V(-36.769552, -36.769552, 0), V(0, 0, 1), 4.25), math.radians(51.75633), math.radians(398.24367)),  # 11
    Part.LineSegment(V(-34.138772, -33.431665, 0), V(-32.717853, -32.010747, 0)),  # 12
    Part.ArcOfCircle(Part.Circle(V(-36.772253, -36.772815, 0), V(0, 0, 1), 6.254235), math.radians(49.589102), math.radians(50.792833)),  # 13
    Part.LineSegment(V(-32.818787, -31.926625, 0), V(-20.161594, -10.003724, 0)),  # 14
    Part.LineSegment(V(-20.161594, -10.003724, 0), V(-21.893645, -9.003724, 0)),  # 15
], False)
sketch4.addConstraint([
    Sketcher.Constraint("Coincident", 0, 2, 1, 1),
    Sketcher.Constraint("Coincident", 1, 2, 2, 1),
    Sketcher.Constraint("Coincident", 2, 2, 3, 1),
    Sketcher.Constraint("Coincident", 3, 2, 4, 1),
    Sketcher.Constraint("Coincident", 4, 2, 5, 1),
    Sketcher.Constraint("Coincident", 5, 2, 6, 1),
    Sketcher.Constraint("Coincident", 6, 2, 7, 1),
    Sketcher.Constraint("Coincident", 7, 2, 8, 1),
    Sketcher.Constraint("Coincident", 8, 2, 9, 1),
    Sketcher.Constraint("Coincident", 9, 2, 10, 1),
    Sketcher.Constraint("Coincident", 10, 2, 11, 2),
    Sketcher.Constraint("Coincident", 11, 1, 12, 1),
    Sketcher.Constraint("Coincident", 12, 2, 13, 1),
    Sketcher.Constraint("Coincident", 13, 2, 14, 1),
    Sketcher.Constraint("Coincident", 14, 2, 15, 1),
    Sketcher.Constraint("Coincident", 15, 2, 0, 1),
    Sketcher.Constraint("Coincident", 5, 3, 1, 3),
    Sketcher.Constraint("Coincident", 11, 3, 1, 3),
    Sketcher.Constraint("Radius", 1, Q("6.25 mm")),
    Sketcher.Constraint("Radius", 5, Q("6.25 mm")),
    Sketcher.Constraint("Radius", 11, Q("4.25 mm")),
    Sketcher.Constraint("Distance", 3, Q("2.000001 mm")),
    Sketcher.Constraint("Distance", 7, Q("2 mm")),
    Sketcher.Constraint("Distance", 15, Q("2 mm")),
    Sketcher.Constraint("DistanceX", 7, 2, 6, 2, Q("1 mm")),
    Sketcher.Constraint("DistanceX", 8, 2, 5, 2, Q("1 mm")),
    Sketcher.Constraint("DistanceY", 13, 2, 0, 2, Q("1 mm")),
    Sketcher.Constraint("DistanceY", 14, 2, 15, 2, Q("1 mm")),
    Sketcher.Constraint("Radius", 9, Q("6.254235 mm")),
    Sketcher.Constraint("Radius", 13, Q("6.254235 mm")),
    Sketcher.Constraint("DistanceY", 2, 2, -1, 1, Q("58.324901 mm")),
    Sketcher.Constraint("DistanceX", 3, 2, -1, 1, Q("58.324901 mm")),
    Sketcher.Constraint("DistanceY", 9, 3, 5, 3, Q("0.0027 mm")),
    Sketcher.Constraint("DistanceX", 13, 3, 1, 3, Q("0.0027 mm")),
    Sketcher.Constraint("DistanceX", 2, 2, 9, 3, Q("22.9663 mm")),
    Sketcher.Constraint("DistanceY", 3, 2, 13, 3, Q("22.9663 mm")),
    Sketcher.Constraint("DistanceX", 5, 2, 6, 2, Q("21.922901 mm")),
    Sketcher.Constraint("DistanceY", 11, 3, 9, 2, Q("4.051699 mm")),
    Sketcher.Constraint("DistanceY", 13, 2, 14, 2, Q("21.922901 mm")),
    Sketcher.Constraint("DistanceX", 1, 2, -1, 1, Q("41.839141 mm")),
    Sketcher.Constraint("DistanceY", 1, 2, -1, 1, Q("40.424928 mm")),
    Sketcher.Constraint("DistanceY", 4, 2, -1, 1, Q("41.839141 mm")),
    Sketcher.Constraint("DistanceX", 11, 1, -1, 1, Q("34.138772 mm")),
    Sketcher.Constraint("DistanceX", 9, 3, 0, 2, Q("2.221978 mm")),
    Sketcher.Constraint("DistanceY", 13, 3, 0, 2, Q("5.84619 mm")),
    Sketcher.Constraint("DistanceX", 1, 2, 13, 3, Q("5.066888 mm")),
    Sketcher.Constraint("DistanceY", 5, 2, 0, 2, Q("3.624212 mm")),
    Sketcher.Constraint("DistanceY", 5, 2, 6, 2, Q("12.657192 mm")),
    Sketcher.Constraint("DistanceX", 10, 2, 8, 2, Q("1.50504 mm")),
    Sketcher.Constraint("DistanceY", 8, 2, 12, 2, Q("0.80804 mm")),
    Sketcher.Constraint("DistanceX", 14, 2, 7, 2, Q("10.15787 mm")),
])
sketch4.setExpression("Constraints[18]", "Params.sketch4_radius")
sketch4.setExpression("Constraints[19]", "Params.sketch4_radius2")
sketch4.setExpression("Constraints[20]", "Params.sketch4_radius3")
sketch4.setExpression("Constraints[21]", "Params.sketch4_length")
sketch4.setExpression("Constraints[22]", "Params.sketch4_length2")
pad4 = doc.addObject("PartDesign::Pad", "Pad003")
body4.addObject(pad4)
pad4.Profile = sketch4
pad4.setExpression("Length", "Params.pad4_length")

doc.recompute()
